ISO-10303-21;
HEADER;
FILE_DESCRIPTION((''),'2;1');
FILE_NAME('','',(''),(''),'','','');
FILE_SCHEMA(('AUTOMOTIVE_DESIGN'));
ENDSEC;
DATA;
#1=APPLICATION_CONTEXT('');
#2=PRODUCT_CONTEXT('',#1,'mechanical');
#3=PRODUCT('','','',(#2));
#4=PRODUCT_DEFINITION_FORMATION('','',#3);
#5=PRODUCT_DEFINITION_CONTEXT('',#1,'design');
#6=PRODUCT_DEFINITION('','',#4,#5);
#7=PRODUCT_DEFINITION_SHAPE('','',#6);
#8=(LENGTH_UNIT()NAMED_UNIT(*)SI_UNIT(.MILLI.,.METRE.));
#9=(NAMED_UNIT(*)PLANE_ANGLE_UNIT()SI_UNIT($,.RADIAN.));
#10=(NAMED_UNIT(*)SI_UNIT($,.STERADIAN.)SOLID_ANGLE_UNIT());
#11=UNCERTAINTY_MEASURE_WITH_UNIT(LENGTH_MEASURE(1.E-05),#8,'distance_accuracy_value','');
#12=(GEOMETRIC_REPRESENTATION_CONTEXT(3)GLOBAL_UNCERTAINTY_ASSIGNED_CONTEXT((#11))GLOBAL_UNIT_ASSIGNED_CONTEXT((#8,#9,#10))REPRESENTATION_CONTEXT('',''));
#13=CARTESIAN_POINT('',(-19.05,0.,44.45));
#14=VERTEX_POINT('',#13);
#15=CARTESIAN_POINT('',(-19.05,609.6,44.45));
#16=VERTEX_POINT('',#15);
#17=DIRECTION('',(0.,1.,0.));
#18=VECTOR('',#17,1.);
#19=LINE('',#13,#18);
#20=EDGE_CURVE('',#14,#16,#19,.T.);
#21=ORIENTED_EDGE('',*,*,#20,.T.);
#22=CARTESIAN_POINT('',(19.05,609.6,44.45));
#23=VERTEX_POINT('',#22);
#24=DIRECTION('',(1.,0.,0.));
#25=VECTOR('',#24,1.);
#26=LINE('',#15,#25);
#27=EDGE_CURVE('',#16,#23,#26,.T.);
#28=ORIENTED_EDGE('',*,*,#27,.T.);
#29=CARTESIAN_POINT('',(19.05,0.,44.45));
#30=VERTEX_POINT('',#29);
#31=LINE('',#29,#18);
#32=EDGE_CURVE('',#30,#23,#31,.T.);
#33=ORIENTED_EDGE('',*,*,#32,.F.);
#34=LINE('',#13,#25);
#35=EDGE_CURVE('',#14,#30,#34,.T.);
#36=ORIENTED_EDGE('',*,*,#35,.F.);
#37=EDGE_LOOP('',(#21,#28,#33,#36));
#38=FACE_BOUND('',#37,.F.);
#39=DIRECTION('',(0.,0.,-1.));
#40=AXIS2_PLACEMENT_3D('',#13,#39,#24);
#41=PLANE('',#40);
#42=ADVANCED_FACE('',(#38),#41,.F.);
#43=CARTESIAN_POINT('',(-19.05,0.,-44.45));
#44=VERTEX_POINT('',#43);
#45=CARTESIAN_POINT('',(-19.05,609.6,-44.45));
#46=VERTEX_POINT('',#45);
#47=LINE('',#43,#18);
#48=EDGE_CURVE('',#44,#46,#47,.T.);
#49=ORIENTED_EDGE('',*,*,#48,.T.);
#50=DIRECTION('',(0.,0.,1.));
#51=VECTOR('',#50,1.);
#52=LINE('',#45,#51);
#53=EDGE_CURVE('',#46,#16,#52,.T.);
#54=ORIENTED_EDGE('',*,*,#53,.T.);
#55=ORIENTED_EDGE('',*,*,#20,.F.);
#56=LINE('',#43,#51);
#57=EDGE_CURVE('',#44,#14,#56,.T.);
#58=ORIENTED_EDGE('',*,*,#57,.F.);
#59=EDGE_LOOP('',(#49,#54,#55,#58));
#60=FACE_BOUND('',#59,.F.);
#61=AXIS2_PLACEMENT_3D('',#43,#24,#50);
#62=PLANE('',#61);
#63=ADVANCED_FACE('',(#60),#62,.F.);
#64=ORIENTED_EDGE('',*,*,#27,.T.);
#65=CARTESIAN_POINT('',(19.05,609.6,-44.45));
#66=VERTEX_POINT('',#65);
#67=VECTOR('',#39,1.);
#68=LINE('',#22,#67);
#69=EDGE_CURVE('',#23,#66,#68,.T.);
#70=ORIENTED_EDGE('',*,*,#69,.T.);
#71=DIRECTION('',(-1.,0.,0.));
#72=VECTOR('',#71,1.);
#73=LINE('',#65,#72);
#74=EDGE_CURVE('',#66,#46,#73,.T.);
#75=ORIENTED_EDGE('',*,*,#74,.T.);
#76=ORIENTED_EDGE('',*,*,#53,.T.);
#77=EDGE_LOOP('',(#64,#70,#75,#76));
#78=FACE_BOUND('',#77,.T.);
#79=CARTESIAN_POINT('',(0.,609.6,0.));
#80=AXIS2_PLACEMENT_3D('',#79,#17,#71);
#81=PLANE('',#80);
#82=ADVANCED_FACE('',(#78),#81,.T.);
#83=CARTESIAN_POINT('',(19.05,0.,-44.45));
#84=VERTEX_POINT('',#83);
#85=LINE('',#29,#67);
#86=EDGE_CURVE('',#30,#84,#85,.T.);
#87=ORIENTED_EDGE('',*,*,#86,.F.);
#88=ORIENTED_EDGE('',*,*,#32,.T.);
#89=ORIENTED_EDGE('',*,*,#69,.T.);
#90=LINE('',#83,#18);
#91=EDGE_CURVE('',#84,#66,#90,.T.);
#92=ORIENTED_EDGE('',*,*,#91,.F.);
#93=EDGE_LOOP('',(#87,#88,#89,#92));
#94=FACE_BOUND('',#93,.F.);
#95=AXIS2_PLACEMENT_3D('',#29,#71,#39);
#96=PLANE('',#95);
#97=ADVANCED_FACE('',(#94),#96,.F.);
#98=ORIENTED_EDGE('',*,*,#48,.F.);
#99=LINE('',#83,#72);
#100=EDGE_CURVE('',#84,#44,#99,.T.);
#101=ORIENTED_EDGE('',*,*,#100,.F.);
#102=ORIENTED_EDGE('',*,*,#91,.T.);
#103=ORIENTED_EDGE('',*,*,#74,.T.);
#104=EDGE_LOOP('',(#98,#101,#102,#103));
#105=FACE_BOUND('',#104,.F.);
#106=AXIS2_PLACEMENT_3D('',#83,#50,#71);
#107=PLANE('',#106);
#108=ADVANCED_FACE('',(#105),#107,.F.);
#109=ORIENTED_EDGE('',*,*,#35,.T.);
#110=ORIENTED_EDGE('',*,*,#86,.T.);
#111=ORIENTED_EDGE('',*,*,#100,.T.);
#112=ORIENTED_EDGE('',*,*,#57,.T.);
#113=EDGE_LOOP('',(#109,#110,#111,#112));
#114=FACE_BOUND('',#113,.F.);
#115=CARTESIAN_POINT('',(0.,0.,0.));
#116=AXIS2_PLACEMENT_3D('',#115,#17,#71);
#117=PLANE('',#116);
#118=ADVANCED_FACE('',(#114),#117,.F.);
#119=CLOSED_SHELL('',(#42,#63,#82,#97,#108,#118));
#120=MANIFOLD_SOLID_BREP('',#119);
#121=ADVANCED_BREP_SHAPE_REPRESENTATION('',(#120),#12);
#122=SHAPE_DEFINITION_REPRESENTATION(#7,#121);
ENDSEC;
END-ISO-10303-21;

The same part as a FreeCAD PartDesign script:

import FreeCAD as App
import Part
import Sketcher
Q = App.Units.Quantity


def add_polygon(sketch, points):
    """Adds a closed chain of lines whose ends are joined by coincident constraints."""
    first, n = sketch.GeometryCount, len(points)
    for a, b in zip(points, points[1:] + points[:1]):
        sketch.addGeometry(Part.LineSegment(App.Vector(*a, 0), App.Vector(*b, 0)), False)
    for i in range(n):
        sketch.addConstraint(Sketcher.Constraint("Coincident", first + i, 2, first + (i + 1) % n, 1))

doc = App.newDocument("Part")
body = doc.addObject("PartDesign::Body", "Body")

# Sketch on XZ plane
sketch1 = body.newObject("Sketcher::SketchObject", "Sketch")
sketch1.AttachmentSupport = (doc.getObject("XZ_Plane"), [""])
sketch1.MapMode = "FlatFace"
add_polygon(sketch1, [(-19, -44), (-19, 44), (19, 44), (19, -44)])  # lines 0-3
sketch1.addConstraint(Sketcher.Constraint("Vertical", 0))
sketch1.addConstraint(Sketcher.Constraint("Horizontal", 1))
sketch1.addConstraint(Sketcher.Constraint("Vertical", 2))
sketch1.addConstraint(Sketcher.Constraint("Horizontal", 3))
sketch1.addConstraint(Sketcher.Constraint("Symmetric", 0, 2, 2, 2, -1, 1))
sketch1.addConstraint(Sketcher.Constraint("DistanceX", 1, 1, 1, 2, Q("1.5 in")))
sketch1.addConstraint(Sketcher.Constraint("DistanceY", 0, 1, 0, 2, Q("3.5 in")))
pad1 = body.newObject("PartDesign::Pad", "Pad")
pad1.Profile = sketch1
pad1.Length = Q("24 in")
pad1.Reversed = True

doc.recompute()
